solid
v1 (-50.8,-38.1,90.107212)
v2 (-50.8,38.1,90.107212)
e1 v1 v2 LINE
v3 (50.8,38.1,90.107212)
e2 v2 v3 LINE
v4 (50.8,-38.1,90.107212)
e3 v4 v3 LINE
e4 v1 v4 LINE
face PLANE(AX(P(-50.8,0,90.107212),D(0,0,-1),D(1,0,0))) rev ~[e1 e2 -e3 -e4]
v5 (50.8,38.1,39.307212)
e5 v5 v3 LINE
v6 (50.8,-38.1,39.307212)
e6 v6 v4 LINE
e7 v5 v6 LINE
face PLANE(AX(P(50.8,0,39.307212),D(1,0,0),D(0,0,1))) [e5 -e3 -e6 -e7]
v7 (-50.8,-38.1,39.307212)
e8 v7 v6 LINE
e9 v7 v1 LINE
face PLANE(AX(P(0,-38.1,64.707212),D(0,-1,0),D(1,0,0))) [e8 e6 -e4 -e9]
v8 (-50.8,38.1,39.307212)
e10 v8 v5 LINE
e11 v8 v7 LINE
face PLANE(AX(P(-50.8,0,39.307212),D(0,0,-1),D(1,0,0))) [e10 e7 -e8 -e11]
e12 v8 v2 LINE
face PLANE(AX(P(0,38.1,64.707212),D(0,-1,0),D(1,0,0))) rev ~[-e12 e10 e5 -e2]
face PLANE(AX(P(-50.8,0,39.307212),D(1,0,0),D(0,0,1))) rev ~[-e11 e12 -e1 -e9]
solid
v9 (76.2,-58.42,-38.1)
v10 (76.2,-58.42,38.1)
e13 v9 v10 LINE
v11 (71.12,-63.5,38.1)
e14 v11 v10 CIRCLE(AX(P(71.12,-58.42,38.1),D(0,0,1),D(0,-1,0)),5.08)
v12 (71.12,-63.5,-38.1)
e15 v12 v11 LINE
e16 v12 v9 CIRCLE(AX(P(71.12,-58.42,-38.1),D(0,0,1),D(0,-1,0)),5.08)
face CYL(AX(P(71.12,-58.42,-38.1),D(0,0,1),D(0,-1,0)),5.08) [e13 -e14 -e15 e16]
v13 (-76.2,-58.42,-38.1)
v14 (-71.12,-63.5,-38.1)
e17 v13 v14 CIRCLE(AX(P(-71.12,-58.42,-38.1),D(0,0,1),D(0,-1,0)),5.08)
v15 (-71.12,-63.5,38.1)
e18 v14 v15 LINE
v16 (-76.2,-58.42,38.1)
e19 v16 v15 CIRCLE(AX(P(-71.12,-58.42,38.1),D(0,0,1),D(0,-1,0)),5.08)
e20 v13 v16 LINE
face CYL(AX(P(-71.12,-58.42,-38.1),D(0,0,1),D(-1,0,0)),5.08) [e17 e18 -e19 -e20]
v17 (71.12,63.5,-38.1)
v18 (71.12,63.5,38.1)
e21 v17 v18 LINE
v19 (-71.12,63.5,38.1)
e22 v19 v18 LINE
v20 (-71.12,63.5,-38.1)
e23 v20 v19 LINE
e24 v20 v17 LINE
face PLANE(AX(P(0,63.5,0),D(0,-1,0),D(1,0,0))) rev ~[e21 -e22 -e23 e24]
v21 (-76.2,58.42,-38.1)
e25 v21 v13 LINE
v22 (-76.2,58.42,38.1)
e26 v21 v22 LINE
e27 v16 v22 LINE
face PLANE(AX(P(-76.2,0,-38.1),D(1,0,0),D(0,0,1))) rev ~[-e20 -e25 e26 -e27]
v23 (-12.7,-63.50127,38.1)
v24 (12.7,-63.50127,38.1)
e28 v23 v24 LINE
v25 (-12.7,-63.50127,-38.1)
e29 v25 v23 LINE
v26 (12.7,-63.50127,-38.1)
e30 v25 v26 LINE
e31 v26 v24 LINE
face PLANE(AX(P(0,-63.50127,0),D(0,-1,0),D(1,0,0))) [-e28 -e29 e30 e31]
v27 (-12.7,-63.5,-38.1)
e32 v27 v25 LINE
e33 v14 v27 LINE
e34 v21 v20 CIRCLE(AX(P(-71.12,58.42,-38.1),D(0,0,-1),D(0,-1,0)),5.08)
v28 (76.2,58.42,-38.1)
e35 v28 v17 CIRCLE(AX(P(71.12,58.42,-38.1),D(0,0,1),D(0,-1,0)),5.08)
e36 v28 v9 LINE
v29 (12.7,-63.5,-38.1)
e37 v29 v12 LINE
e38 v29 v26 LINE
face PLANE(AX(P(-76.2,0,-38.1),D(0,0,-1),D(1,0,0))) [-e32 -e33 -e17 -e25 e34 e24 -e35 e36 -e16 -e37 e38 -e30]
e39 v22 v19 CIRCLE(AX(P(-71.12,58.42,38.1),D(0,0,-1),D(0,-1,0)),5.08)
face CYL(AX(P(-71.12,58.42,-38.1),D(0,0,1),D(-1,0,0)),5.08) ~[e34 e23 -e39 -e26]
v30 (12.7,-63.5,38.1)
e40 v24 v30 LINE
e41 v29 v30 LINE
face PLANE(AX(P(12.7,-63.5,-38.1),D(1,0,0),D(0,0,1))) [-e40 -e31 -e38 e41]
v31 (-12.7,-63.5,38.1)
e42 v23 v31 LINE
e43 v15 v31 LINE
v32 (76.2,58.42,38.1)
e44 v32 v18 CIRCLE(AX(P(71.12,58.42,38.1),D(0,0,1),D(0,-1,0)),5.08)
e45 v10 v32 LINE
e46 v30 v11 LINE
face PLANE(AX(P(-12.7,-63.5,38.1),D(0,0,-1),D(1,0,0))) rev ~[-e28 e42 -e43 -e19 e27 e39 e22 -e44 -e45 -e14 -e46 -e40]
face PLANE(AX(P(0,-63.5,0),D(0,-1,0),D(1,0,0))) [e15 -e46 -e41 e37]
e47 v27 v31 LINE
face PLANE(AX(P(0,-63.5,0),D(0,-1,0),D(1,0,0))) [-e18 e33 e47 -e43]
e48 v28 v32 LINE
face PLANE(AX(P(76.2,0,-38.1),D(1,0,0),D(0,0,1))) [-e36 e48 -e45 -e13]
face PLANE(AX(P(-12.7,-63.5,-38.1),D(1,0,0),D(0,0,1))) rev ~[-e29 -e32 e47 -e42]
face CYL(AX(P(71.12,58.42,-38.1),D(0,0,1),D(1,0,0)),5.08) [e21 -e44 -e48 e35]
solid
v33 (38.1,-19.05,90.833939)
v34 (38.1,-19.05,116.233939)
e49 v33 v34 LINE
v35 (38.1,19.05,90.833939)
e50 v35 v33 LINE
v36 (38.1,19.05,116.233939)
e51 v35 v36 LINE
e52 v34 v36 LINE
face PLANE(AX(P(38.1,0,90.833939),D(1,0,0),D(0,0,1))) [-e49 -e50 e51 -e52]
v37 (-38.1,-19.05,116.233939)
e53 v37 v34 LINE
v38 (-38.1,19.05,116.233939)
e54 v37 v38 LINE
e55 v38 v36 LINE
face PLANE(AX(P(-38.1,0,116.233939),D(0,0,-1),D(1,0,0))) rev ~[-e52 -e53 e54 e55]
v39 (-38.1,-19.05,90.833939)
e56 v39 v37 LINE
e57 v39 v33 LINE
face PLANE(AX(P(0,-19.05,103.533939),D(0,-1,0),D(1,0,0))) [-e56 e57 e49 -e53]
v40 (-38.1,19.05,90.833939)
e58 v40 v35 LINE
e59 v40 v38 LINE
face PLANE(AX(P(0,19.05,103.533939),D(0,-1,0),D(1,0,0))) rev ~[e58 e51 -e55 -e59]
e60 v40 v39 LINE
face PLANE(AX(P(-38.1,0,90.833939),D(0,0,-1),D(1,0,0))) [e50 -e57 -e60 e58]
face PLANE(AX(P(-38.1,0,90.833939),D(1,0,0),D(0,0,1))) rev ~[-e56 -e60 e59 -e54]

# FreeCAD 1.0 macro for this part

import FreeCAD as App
import Part
import Sketcher
Q = App.Units.Quantity


def edges_at(feature, points):
    """Names of the edges that pass closest to the given points."""
    edges = feature.Shape.Edges
    near = lambda p: min(range(len(edges)), key=lambda i: edges[i].distToShape(Part.Vertex(*p))[0])
    return sorted({f"Edge{near(p) + 1}" for p in points})

doc = App.newDocument("Part")
body = doc.addObject("PartDesign::Body", "Body")

# Sketch on XZ plane
sketch1 = body.newObject("Sketcher::SketchObject", "Sketch")
sketch1.AttachmentSupport = (doc.getObject("XZ_Plane"), [""])
sketch1.MapMode = "FlatFace"
sketch1.addGeometry(Part.LineSegment(App.Vector(-76, 38, 0), App.Vector(-76, -38, 0)), False)
sketch1.addGeometry(Part.LineSegment(App.Vector(-76, -38, 0), App.Vector(76, -38, 0)), False)
sketch1.addGeometry(Part.LineSegment(App.Vector(76, -38, 0), App.Vector(76, 38, 0)), False)
sketch1.addGeometry(Part.LineSegment(App.Vector(76, 38, 0), App.Vector(-76, 38, 0)), False)
sketch1.addConstraint(Sketcher.Constraint("Coincident", 0, 2, 1, 1))
sketch1.addConstraint(Sketcher.Constraint("Coincident", 1, 2, 2, 1))
sketch1.addConstraint(Sketcher.Constraint("Coincident", 2, 2, 3, 1))
sketch1.addConstraint(Sketcher.Constraint("Coincident", 3, 2, 0, 1))
sketch1.addConstraint(Sketcher.Constraint("Vertical", 0))
sketch1.addConstraint(Sketcher.Constraint("Horizontal", 1))
sketch1.addConstraint(Sketcher.Constraint("Vertical", 2))
sketch1.addConstraint(Sketcher.Constraint("Horizontal", 3))
sketch1.addConstraint(Sketcher.Constraint("Symmetric", 0, 2, 2, 2, -1, 1))
sketch1.addConstraint(Sketcher.Constraint("DistanceX", 1, 1, 1, 2, Q("6 in")))
sketch1.addConstraint(Sketcher.Constraint("DistanceY", 0, 2, 0, 1, Q("3 in")))
pad1 = body.newObject("PartDesign::Pad", "Pad")
pad1.Profile = sketch1
pad1.Length = Q("5 in")
pad1.Midplane = True
doc.recompute()

fillet = body.newObject("PartDesign::Fillet", "Fillet")
fillet.Base = (pad1, edges_at(pad1, [
    (-76.2, -63.5, 0),
    (76.2, -63.5, 0),
    (76.2, 63.5, 0),
    (-76.2, 63.5, 0),
]))
fillet.Radius = Q("0.2 in")

# Sketch on XZ plane
sketch2 = body.newObject("Sketcher::SketchObject", "Sketch001")
sketch2.AttachmentSupport = (doc.getObject("XZ_Plane"), [""])
sketch2.MapMode = "FlatFace"
sketch2.AttachmentOffset = App.Placement(App.Vector(0, 0, 2.5 * 25.4), App.Rotation())
sketch2.addGeometry(Part.LineSegment(App.Vector(-13, 38, 0), App.Vector(-13, -38, 0)), False)
sketch2.addGeometry(Part.LineSegment(App.Vector(-13, -38, 0), App.Vector(13, -38, 0)), False)
sketch2.addGeometry(Part.LineSegment(App.Vector(13, -38, 0), App.Vector(13, 38, 0)), False)
sketch2.addGeometry(Part.LineSegment(App.Vector(13, 38, 0), App.Vector(-13, 38, 0)), False)
sketch2.addConstraint(Sketcher.Constraint("Coincident", 0, 2, 1, 1))
sketch2.addConstraint(Sketcher.Constraint("Coincident", 1, 2, 2, 1))
sketch2.addConstraint(Sketcher.Constraint("Coincident", 2, 2, 3, 1))
sketch2.addConstraint(Sketcher.Constraint("Coincident", 3, 2, 0, 1))
sketch2.addConstraint(Sketcher.Constraint("Vertical", 0))
sketch2.addConstraint(Sketcher.Constraint("Horizontal", 1))
sketch2.addConstraint(Sketcher.Constraint("Vertical", 2))
sketch2.addConstraint(Sketcher.Constraint("Horizontal", 3))
sketch2.addConstraint(Sketcher.Constraint("Symmetric", 0, 2, 2, 2, -1, 1))
sketch2.addConstraint(Sketcher.Constraint("DistanceX", 1, 1, 1, 2, Q("1 in")))
sketch2.addConstraint(Sketcher.Constraint("DistanceY", 0, 2, 0, 1, Q("3 in")))
pad2 = body.newObject("PartDesign::Pad", "Pad001")
pad2.Profile = sketch2
pad2.Length = Q("0.0001 in")
pad2.Midplane = True
body2 = doc.addObject("PartDesign::Body", "Body001")

# Sketch on XZ plane
sketch3 = body2.newObject("Sketcher::SketchObject", "Sketch002")
sketch3.AttachmentSupport = (doc.getObject("XZ_Plane001"), [""])
sketch3.MapMode = "FlatFace"
sketch3.addGeometry(Part.LineSegment(App.Vector(-51, 90, 0), App.Vector(-51, 39, 0)), False)
sketch3.addGeometry(Part.LineSegment(App.Vector(-51, 39, 0), App.Vector(51, 39, 0)), False)
sketch3.addGeometry(Part.LineSegment(App.Vector(51, 39, 0), App.Vector(51, 90, 0)), False)
sketch3.addGeometry(Part.LineSegment(App.Vector(51, 90, 0), App.Vector(-51, 90, 0)), False)
sketch3.addConstraint(Sketcher.Constraint("Coincident", 0, 2, 1, 1))
sketch3.addConstraint(Sketcher.Constraint("Coincident", 1, 2, 2, 1))
sketch3.addConstraint(Sketcher.Constraint("Coincident", 2, 2, 3, 1))
sketch3.addConstraint(Sketcher.Constraint("Coincident", 3, 2, 0, 1))
sketch3.addConstraint(Sketcher.Constraint("Vertical", 0))
sketch3.addConstraint(Sketcher.Constraint("Horizontal", 1))
sketch3.addConstraint(Sketcher.Constraint("Vertical", 2))
sketch3.addConstraint(Sketcher.Constraint("Horizontal", 3))
sketch3.addConstraint(Sketcher.Constraint("DistanceX", 1, 1, 1, 2, Q("4 in")))
sketch3.addConstraint(Sketcher.Constraint("DistanceY", 0, 2, 0, 1, Q("2 in")))
sketch3.addConstraint(Sketcher.Constraint("DistanceX", 0, 2, -1, 1, Q("2 in")))
sketch3.addConstraint(Sketcher.Constraint("DistanceY", -1, 1, 0, 2, 39.307212))
pad3 = body2.newObject("PartDesign::Pad", "Pad002")
pad3.Profile = sketch3
pad3.Length = Q("3 in")
pad3.Midplane = True
body3 = doc.addObject("PartDesign::Body", "Body002")

# Sketch on XZ plane
sketch4 = body3.newObject("Sketcher::SketchObject", "Sketch003")
sketch4.AttachmentSupport = (doc.getObject("XZ_Plane002"), [""])
sketch4.MapMode = "FlatFace"
sketch4.addGeometry(Part.LineSegment(App.Vector(-38, 116, 0), App.Vector(-38, 91, 0)), False)
sketch4.addGeometry(Part.LineSegment(App.Vector(-38, 91, 0), App.Vector(38, 91, 0)), False)
sketch4.addGeometry(Part.LineSegment(App.Vector(38, 91, 0), App.Vector(38, 116, 0)), False)
sketch4.addGeometry(Part.LineSegment(App.Vector(38, 116, 0), App.Vector(-38, 116, 0)), False)
sketch4.addConstraint(Sketcher.Constraint("Coincident", 0, 2, 1, 1))
sketch4.addConstraint(Sketcher.Constraint("Coincident", 1, 2, 2, 1))
sketch4.addConstraint(Sketcher.Constraint("Coincident", 2, 2, 3, 1))
sketch4.addConstraint(Sketcher.Constraint("Coincident", 3, 2, 0, 1))
sketch4.addConstraint(Sketcher.Constraint("Vertical", 0))
sketch4.addConstraint(Sketcher.Constraint("Horizontal", 1))
sketch4.addConstraint(Sketcher.Constraint("Vertical", 2))
sketch4.addConstraint(Sketcher.Constraint("Horizontal", 3))
sketch4.addConstraint(Sketcher.Constraint("DistanceX", 1, 1, 1, 2, Q("3 in")))
sketch4.addConstraint(Sketcher.Constraint("DistanceY", 0, 2, 0, 1, Q("1 in")))
sketch4.addConstraint(Sketcher.Constraint("DistanceX", 0, 2, -1, 1, Q("1.5 in")))
sketch4.addConstraint(Sketcher.Constraint("DistanceY", -1, 1, 0, 2, 90.833939))
pad4 = body3.newObject("PartDesign::Pad", "Pad003")
pad4.Profile = sketch4
pad4.Length = Q("1.5 in")
pad4.Midplane = True

doc.recompute()
